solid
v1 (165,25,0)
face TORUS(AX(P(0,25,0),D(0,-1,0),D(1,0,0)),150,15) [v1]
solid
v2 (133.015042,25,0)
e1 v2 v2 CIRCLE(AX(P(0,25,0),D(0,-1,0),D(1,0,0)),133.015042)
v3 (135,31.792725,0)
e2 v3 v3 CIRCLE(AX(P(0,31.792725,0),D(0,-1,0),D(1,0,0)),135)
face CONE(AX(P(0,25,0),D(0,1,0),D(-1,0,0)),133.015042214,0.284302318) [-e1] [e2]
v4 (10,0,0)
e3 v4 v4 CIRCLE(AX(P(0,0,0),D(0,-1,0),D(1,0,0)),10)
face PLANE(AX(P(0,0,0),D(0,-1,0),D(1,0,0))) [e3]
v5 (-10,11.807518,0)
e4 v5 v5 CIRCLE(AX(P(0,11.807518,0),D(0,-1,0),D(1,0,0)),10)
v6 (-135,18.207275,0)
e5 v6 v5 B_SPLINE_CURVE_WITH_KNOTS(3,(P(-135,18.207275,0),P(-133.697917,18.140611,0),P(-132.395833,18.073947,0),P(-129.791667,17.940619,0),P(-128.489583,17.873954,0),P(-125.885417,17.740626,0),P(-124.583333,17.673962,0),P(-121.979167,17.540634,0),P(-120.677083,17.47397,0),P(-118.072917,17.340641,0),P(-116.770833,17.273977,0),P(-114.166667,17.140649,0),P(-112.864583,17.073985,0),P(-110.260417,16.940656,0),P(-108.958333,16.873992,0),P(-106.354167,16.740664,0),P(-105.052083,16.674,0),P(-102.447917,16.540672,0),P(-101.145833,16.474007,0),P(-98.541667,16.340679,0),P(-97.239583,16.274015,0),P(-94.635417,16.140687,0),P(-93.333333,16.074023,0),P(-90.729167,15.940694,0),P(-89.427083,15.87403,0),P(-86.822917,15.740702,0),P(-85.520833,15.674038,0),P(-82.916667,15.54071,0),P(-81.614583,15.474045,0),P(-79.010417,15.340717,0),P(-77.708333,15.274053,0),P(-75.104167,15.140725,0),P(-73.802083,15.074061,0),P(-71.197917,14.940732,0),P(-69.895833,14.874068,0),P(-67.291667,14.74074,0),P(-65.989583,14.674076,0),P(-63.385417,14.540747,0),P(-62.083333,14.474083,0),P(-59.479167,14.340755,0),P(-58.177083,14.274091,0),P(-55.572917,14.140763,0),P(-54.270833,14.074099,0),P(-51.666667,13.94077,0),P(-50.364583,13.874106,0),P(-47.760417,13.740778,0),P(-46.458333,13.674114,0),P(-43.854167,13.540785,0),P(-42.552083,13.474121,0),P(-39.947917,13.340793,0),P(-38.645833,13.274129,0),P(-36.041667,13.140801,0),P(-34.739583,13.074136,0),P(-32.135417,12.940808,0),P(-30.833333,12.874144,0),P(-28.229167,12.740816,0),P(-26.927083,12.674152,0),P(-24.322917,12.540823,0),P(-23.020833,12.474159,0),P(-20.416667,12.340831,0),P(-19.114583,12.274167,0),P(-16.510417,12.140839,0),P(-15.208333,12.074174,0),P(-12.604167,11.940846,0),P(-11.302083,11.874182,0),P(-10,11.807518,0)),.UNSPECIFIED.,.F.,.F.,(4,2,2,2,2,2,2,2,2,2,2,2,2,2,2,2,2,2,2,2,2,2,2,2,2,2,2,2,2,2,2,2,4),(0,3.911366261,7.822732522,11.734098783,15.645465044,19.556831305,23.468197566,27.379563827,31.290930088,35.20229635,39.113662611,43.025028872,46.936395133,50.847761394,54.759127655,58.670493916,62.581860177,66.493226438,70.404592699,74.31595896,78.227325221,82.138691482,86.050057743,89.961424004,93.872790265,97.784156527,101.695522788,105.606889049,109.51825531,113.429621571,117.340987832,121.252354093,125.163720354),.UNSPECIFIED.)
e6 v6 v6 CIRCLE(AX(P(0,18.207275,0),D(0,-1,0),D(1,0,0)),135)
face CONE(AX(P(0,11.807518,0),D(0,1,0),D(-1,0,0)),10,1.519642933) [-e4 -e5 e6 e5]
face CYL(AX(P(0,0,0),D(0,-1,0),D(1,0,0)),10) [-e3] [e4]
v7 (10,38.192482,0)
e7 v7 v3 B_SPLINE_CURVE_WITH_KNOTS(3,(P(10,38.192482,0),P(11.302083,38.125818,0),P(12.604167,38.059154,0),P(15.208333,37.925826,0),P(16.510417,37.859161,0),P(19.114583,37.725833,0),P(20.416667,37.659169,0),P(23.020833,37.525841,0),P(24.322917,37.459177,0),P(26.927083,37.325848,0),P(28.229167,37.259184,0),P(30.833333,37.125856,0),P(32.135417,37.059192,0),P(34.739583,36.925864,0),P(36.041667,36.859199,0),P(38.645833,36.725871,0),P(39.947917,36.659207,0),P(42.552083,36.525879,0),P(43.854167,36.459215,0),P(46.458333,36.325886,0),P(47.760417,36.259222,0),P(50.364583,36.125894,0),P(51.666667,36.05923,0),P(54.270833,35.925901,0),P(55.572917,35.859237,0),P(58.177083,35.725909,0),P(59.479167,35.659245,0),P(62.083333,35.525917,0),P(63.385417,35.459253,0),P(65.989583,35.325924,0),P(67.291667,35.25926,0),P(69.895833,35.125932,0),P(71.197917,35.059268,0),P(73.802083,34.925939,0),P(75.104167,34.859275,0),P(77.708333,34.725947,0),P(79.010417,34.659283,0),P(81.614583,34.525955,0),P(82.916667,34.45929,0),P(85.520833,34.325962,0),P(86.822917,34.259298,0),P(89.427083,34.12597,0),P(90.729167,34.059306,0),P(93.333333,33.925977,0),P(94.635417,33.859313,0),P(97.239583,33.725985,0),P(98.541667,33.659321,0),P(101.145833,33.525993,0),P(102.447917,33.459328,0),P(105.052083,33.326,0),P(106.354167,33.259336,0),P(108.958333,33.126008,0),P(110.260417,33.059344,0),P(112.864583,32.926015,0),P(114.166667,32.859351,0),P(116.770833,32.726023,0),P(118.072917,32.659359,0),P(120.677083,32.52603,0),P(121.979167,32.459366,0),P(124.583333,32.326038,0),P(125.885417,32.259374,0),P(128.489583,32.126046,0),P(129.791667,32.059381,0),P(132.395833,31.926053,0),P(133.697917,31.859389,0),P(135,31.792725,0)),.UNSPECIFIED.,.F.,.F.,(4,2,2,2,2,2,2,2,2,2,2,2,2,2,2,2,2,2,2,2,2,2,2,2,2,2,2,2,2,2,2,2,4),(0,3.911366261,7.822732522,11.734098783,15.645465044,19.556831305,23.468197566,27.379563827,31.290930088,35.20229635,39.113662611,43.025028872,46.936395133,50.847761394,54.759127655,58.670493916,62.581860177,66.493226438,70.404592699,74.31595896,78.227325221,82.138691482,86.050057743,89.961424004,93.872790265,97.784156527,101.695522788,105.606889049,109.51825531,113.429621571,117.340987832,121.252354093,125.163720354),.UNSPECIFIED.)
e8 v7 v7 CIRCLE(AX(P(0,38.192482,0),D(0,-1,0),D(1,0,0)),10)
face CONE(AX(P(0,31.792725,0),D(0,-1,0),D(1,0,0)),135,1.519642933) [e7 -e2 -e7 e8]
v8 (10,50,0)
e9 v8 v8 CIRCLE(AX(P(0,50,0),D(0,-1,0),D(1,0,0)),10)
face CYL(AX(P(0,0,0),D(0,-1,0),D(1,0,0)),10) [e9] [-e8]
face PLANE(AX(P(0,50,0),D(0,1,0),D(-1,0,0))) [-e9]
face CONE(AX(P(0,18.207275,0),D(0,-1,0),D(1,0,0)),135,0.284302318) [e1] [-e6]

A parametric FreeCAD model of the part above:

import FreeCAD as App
import Part
import Sketcher
from FreeCAD import Vector
Q = App.Units.Quantity


def add_polygon(sketch, points):
    """Adds a closed chain of lines whose ends are joined by coincident constraints."""
    first, n = sketch.GeometryCount, len(points)
    for a, b in zip(points, points[1:] + points[:1]):
        sketch.addGeometry(Part.LineSegment(App.Vector(*a, 0), App.Vector(*b, 0)), False)
    for i in range(n):
        sketch.addConstraint(Sketcher.Constraint("Coincident", first + i, 2, first + (i + 1) % n, 1))

doc = App.newDocument("Part")
params = doc.addObject("Spreadsheet::Sheet", "Params")
for row, (alias, value) in enumerate([
    ("sketch1_diameter", "30 mm"),
    ("sketch1_width", "10 mm"),
    ("sketch1_height", "50 mm"),
    ("revolution_angle", "360 deg"),
], start=1):
    params.set(f"A{row}", alias)
    params.set(f"B{row}", "=" + value)
    params.setAlias(f"B{row}", alias)

body = doc.addObject("PartDesign::Body", "Body")
body.AllowCompound = True

sketch1 = body.newObject("Sketcher::SketchObject", "Sketch")
sketch1.AttachmentSupport = (doc.getObject("XY_Plane"), [""])
sketch1.MapMode = "FlatFace"
sketch1.addGeometry(Part.Circle(Vector(150, 25, 0), Vector(0, 0, 1), 15), False)
add_polygon(sketch1, [(10, 50), (0, 50), (0, 0), (10, 0), (10, 11.807518), (135, 18.207275), (133.015042, 25), (135, 31.792725), (10, 38.192482)])
sketch1.addConstraint(Sketcher.Constraint("Horizontal", 1))
sketch1.addConstraint(Sketcher.Constraint("Vertical", 2))
sketch1.addConstraint(Sketcher.Constraint("Horizontal", 3))
sketch1.addConstraint(Sketcher.Constraint("Vertical", 4))
sketch1.addConstraint(Sketcher.Constraint("Vertical", 9))
sketch1.addConstraint(Sketcher.Constraint("Coincident", 2, 2, -1, 1))
sketch1.addConstraint(Sketcher.Constraint("Horizontal", 0, 3, 6, 2))
sketch1.addConstraint(Sketcher.Constraint("Vertical", 5, 2, 7, 2))
sketch1.addConstraint(Sketcher.Constraint("Vertical", 4, 2, 8, 2))
sketch1.addConstraint(Sketcher.Constraint("Equal", 4, 9))
sketch1.addConstraint(Sketcher.Constraint("Equal", 6, 7))
sketch1.addConstraint(Sketcher.Constraint("Equal", 5, 8))
sketch1.addConstraint(Sketcher.Constraint("Diameter", 0, Q("30 mm")))
sketch1.addConstraint(Sketcher.Constraint("DistanceX", 1, 2, 1, 1, Q("10 mm")))
sketch1.addConstraint(Sketcher.Constraint("DistanceY", 2, 2, 2, 1, Q("50 mm")))
sketch1.addConstraint(Sketcher.Constraint("DistanceX", -1, 1, 0, 3, Q("150 mm")))
sketch1.addConstraint(Sketcher.Constraint("DistanceX", -1, 1, 5, 2, Q("135 mm")))
sketch1.addConstraint(Sketcher.Constraint("Distance", 5, Q("125.16372 mm")))
sketch1.addConstraint(Sketcher.Constraint("DistanceY", 4, 1, 4, 2, Q("11.807518 mm")))
sketch1.addConstraint(Sketcher.Constraint("Distance", 6, Q("7.076805 mm")))
sketch1.setExpression("Constraints[21]", "Params.sketch1_diameter")
sketch1.setExpression("Constraints[22]", "Params.sketch1_width")
sketch1.setExpression("Constraints[23]", "Params.sketch1_height")
revolution = body.newObject("PartDesign::Revolution", "Revolution")
revolution.Profile = sketch1
revolution.ReferenceAxis = (sketch1, ["V_Axis"])
revolution.setExpression("Angle", "Params.revolution_angle")

doc.recompute()
